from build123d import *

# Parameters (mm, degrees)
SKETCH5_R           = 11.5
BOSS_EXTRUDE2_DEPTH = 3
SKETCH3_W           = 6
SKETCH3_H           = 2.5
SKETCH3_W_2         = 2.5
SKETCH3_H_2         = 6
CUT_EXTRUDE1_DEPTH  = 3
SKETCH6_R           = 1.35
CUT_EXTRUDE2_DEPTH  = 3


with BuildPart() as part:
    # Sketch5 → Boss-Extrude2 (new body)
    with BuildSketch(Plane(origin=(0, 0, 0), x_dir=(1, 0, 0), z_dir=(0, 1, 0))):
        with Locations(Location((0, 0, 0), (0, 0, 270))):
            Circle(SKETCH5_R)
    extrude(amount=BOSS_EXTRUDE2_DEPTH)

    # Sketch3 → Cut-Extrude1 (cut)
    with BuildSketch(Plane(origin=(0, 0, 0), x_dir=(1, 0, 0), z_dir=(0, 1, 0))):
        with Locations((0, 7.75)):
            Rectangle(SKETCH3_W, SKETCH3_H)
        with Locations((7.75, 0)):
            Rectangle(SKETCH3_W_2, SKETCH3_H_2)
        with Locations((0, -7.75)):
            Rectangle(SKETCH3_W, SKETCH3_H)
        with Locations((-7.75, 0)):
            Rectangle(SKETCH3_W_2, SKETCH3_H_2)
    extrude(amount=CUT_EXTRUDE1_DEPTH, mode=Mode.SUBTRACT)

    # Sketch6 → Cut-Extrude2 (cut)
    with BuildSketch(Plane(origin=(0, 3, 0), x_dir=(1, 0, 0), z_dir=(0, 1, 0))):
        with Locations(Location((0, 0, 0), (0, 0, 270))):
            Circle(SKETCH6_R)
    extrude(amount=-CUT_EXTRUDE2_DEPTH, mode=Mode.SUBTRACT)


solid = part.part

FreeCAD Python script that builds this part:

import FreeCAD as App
import Part
import Sketcher
from FreeCAD import Vector

doc = App.newDocument("Part")
body = doc.addObject("PartDesign::Body", "Body")

# Sketch on XZ plane
sketch1 = body.newObject("Sketcher::SketchObject", "Sketch")
sketch1.AttachmentSupport = (doc.getObject("XZ_Plane"), [""])
sketch1.MapMode = "FlatFace"
sketch1.addGeometry(Part.Circle(Vector(0, 0, 0), Vector(0, 0, 1), 12), False)
sketch1.addConstraint([
    Sketcher.Constraint("Coincident", 0, 3, -1, 1),
    Sketcher.Constraint("Diameter", 0, 23.0),
])
pad1 = body.newObject("PartDesign::Pad", "Pad")
pad1.Profile = sketch1
pad1.Length = 3
pad1.Reversed = True

# Sketch on XZ plane
sketch2 = body.newObject("Sketcher::SketchObject", "Sketch001")
sketch2.AttachmentSupport = (doc.getObject("XZ_Plane"), [""])
sketch2.MapMode = "FlatFace"
sketch2.addGeometry([
    Part.LineSegment(Vector(-3, -9, 0), Vector(-3, -6.5, 0)),  # 0
    Part.LineSegment(Vector(-3, -6.5, 0), Vector(3, -6.5, 0)),  # 1
    Part.LineSegment(Vector(3, -6.5, 0), Vector(3, -9, 0)),  # 2
    Part.LineSegment(Vector(3, -9, 0), Vector(-3, -9, 0)),  # 3
    Part.LineSegment(Vector(6.5, -3, 0), Vector(6.5, 3, 0)),  # 4
    Part.LineSegment(Vector(6.5, 3, 0), Vector(9, 3, 0)),  # 5
    Part.LineSegment(Vector(9, 3, 0), Vector(9, -3, 0)),  # 6
    Part.LineSegment(Vector(9, -3, 0), Vector(6.5, -3, 0)),  # 7
    Part.LineSegment(Vector(-3, 6.5, 0), Vector(-3, 9, 0)),  # 8
    Part.LineSegment(Vector(-3, 9, 0), Vector(3, 9, 0)),  # 9
    Part.LineSegment(Vector(3, 9, 0), Vector(3, 6.5, 0)),  # 10
    Part.LineSegment(Vector(3, 6.5, 0), Vector(-3, 6.5, 0)),  # 11
    Part.LineSegment(Vector(-9, -3, 0), Vector(-9, 3, 0)),  # 12
    Part.LineSegment(Vector(-9, 3, 0), Vector(-6.5, 3, 0)),  # 13
    Part.LineSegment(Vector(-6.5, 3, 0), Vector(-6.5, -3, 0)),  # 14
    Part.LineSegment(Vector(-6.5, -3, 0), Vector(-9, -3, 0)),  # 15
], False)
sketch2.addConstraint([
    Sketcher.Constraint("Coincident", 0, 2, 1, 1),
    Sketcher.Constraint("Coincident", 1, 2, 2, 1),
    Sketcher.Constraint("Coincident", 2, 2, 3, 1),
    Sketcher.Constraint("Coincident", 3, 2, 0, 1),
    Sketcher.Constraint("Coincident", 4, 2, 5, 1),
    Sketcher.Constraint("Coincident", 5, 2, 6, 1),
    Sketcher.Constraint("Coincident", 6, 2, 7, 1),
    Sketcher.Constraint("Coincident", 7, 2, 4, 1),
    Sketcher.Constraint("Coincident", 8, 2, 9, 1),
    Sketcher.Constraint("Coincident", 9, 2, 10, 1),
    Sketcher.Constraint("Coincident", 10, 2, 11, 1),
    Sketcher.Constraint("Coincident", 11, 2, 8, 1),
    Sketcher.Constraint("Coincident", 12, 2, 13, 1),
    Sketcher.Constraint("Coincident", 13, 2, 14, 1),
    Sketcher.Constraint("Coincident", 14, 2, 15, 1),
    Sketcher.Constraint("Coincident", 15, 2, 12, 1),
    Sketcher.Constraint("Vertical", 0),
    Sketcher.Constraint("Horizontal", 1),
    Sketcher.Constraint("Vertical", 2),
    Sketcher.Constraint("Horizontal", 3),
    Sketcher.Constraint("Vertical", 4),
    Sketcher.Constraint("Horizontal", 5),
    Sketcher.Constraint("Vertical", 6),
    Sketcher.Constraint("Horizontal", 7),
    Sketcher.Constraint("Vertical", 8),
    Sketcher.Constraint("Horizontal", 9),
    Sketcher.Constraint("Vertical", 10),
    Sketcher.Constraint("Horizontal", 11),
    Sketcher.Constraint("Vertical", 12),
    Sketcher.Constraint("Horizontal", 13),
    Sketcher.Constraint("Vertical", 14),
    Sketcher.Constraint("Horizontal", 15),
    Sketcher.Constraint("Symmetric", 2, 2, 8, 2, -1, 1),
    Sketcher.Constraint("Symmetric", 0, 2, 10, 2, -1, 1),
    Sketcher.Constraint("Symmetric", 6, 2, 12, 2, -1, 1),
    Sketcher.Constraint("Symmetric", 4, 2, 14, 2, -1, 1),
    Sketcher.Constraint("Horizontal", 5, 2, 12, 2),
    Sketcher.Constraint("Vertical", 3, 2, 8, 2),
    Sketcher.Constraint("Equal", 15, 0),
    Sketcher.Constraint("Equal", 11, 4),
    Sketcher.Constraint("DistanceX", 1, 1, 1, 2, 6.0),
    Sketcher.Constraint("DistanceX", 5, 1, 5, 2, 2.5),
    Sketcher.Constraint("DistanceY", 2, 2, -1, 1, 9.0),
    Sketcher.Constraint("DistanceX", -1, 1, 5, 2, 9.0),
])
pocket1 = body.newObject("PartDesign::Pocket", "Pocket")
pocket1.Profile = sketch2
pocket1.Length = 3

# Sketch on XZ plane
sketch3 = body.newObject("Sketcher::SketchObject", "Sketch002")
sketch3.AttachmentSupport = (doc.getObject("XZ_Plane"), [""])
sketch3.MapMode = "FlatFace"
sketch3.AttachmentOffset = App.Placement(Vector(0, 0, -3), App.Rotation())
sketch3.addGeometry(Part.Circle(Vector(0, 0, 0), Vector(0, 0, 1), 1.4), False)
sketch3.addConstraint([
    Sketcher.Constraint("Coincident", 0, 3, -1, 1),
    Sketcher.Constraint("Diameter", 0, 2.7),
])
pocket2 = body.newObject("PartDesign::Pocket", "Pocket001")
pocket2.Profile = sketch3
pocket2.Length = 3
pocket2.Reversed = True

doc.recompute()
